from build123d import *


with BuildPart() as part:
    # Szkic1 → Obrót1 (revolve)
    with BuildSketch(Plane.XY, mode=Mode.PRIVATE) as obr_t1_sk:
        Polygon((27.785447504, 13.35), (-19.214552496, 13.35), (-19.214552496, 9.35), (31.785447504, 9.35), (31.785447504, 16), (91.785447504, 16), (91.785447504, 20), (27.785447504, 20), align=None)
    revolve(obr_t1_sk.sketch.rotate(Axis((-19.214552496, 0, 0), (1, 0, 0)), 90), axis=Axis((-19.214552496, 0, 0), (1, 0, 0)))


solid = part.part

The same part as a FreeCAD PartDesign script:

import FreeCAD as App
import Part
import Sketcher
Q = App.Units.Quantity


def add_polygon(sketch, points):
    """Adds a closed chain of lines whose ends are joined by coincident constraints."""
    first, n = sketch.GeometryCount, len(points)
    for a, b in zip(points, points[1:] + points[:1]):
        sketch.addGeometry(Part.LineSegment(App.Vector(*a, 0), App.Vector(*b, 0)), False)
    for i in range(n):
        sketch.addConstraint(Sketcher.Constraint("Coincident", first + i, 2, first + (i + 1) % n, 1))

doc = App.newDocument("Part")
body = doc.addObject("PartDesign::Body", "Body")

# Sketch on XY plane
sketch1 = body.newObject("Sketcher::SketchObject", "Sketch")
sketch1.AttachmentSupport = (doc.getObject("XY_Plane"), [""])
sketch1.MapMode = "FlatFace"
add_polygon(sketch1, [(27.8, 13.3), (-19.2, 13.3), (-19.2, 9.3), (31.8, 9.3), (31.8, 16), (91.8, 16), (91.8, 20), (27.8, 20)])  # lines 0-7
sketch1.addConstraint([
    Sketcher.Constraint("Horizontal", 0),
    Sketcher.Constraint("Vertical", 1),
    Sketcher.Constraint("Horizontal", 2),
    Sketcher.Constraint("Vertical", 3),
    Sketcher.Constraint("Horizontal", 4),
    Sketcher.Constraint("Vertical", 5),
    Sketcher.Constraint("Horizontal", 6),
    Sketcher.Constraint("Vertical", 7),
    Sketcher.Constraint("Equal", 1, 5),
    Sketcher.Constraint("DistanceX", 0, 2, 0, 1, Q("47 mm")),
    Sketcher.Constraint("DistanceX", 2, 1, 2, 2, Q("51 mm")),
    Sketcher.Constraint("DistanceX", 4, 1, 4, 2, Q("60 mm")),
    Sketcher.Constraint("DistanceY", 1, 2, 1, 1, Q("4 mm")),
    Sketcher.Constraint("DistanceY", -1, 1, 3, 2, Q("16 mm")),
    Sketcher.Constraint("DistanceY", 3, 1, 3, 2, Q("6.65 mm")),
    Sketcher.Constraint("DistanceX", 0, 2, -1, 1, Q("19.214552 mm")),
])
revolution = body.newObject("PartDesign::Revolution", "Revolution")
revolution.Profile = sketch1
revolution.ReferenceAxis = (sketch1, ["H_Axis"])
revolution.Angle = 360

doc.recompute()
